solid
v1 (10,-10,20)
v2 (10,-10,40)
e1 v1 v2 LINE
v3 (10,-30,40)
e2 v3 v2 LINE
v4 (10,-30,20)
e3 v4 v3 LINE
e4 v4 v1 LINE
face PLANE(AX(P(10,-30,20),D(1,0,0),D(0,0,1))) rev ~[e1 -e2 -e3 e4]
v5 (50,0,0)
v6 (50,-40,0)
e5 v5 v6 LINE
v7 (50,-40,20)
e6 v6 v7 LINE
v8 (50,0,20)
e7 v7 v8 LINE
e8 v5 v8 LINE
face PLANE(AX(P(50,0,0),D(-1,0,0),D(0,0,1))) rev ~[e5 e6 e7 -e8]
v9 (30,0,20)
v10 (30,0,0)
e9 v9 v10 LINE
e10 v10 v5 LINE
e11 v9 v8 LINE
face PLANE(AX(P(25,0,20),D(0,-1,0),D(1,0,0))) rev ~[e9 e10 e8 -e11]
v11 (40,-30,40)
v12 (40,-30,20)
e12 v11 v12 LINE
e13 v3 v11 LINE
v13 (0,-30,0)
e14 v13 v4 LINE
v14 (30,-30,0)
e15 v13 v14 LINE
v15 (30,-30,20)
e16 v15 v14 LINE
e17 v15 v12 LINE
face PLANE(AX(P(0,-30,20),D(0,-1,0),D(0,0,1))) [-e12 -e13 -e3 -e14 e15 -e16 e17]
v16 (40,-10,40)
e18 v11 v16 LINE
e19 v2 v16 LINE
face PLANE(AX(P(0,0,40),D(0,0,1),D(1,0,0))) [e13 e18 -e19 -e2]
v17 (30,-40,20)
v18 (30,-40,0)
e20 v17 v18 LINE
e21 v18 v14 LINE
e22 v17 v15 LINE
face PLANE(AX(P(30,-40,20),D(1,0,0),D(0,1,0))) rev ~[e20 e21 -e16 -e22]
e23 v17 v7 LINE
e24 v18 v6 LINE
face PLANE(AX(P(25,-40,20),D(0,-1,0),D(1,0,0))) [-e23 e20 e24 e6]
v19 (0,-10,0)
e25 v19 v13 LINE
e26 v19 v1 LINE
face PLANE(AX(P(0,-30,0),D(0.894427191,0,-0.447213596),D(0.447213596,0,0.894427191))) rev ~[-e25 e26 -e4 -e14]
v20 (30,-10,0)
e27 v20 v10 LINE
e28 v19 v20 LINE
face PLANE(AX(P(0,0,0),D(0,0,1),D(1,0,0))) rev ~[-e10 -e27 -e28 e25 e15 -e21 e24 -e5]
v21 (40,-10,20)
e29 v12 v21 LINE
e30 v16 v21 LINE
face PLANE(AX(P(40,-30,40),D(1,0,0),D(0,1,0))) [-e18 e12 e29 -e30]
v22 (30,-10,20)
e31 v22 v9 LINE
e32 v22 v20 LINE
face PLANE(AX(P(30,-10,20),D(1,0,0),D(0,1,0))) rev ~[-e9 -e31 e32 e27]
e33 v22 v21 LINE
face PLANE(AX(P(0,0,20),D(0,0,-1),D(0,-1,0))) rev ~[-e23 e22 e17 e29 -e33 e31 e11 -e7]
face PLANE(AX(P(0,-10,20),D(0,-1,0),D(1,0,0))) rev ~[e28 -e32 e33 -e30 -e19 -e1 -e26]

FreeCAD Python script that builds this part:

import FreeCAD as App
import Part
import Sketcher
Q = App.Units.Quantity

doc = App.newDocument("Part")
body = doc.addObject("PartDesign::Body", "Body")

# Sketch on XZ plane
sketch1 = body.newObject("Sketcher::SketchObject", "Sketch")
sketch1.AttachmentSupport = (doc.getObject("XZ_Plane"), [""])
sketch1.MapMode = "FlatFace"
sketch1.addGeometry([
    Part.LineSegment(App.Vector(0, 40, 0), App.Vector(0, 0, 0)),
    Part.LineSegment(App.Vector(0, 0, 0), App.Vector(50, 0, 0)),
    Part.LineSegment(App.Vector(50, 0, 0), App.Vector(50, 40, 0)),
    Part.LineSegment(App.Vector(50, 40, 0), App.Vector(0, 40, 0)),
], False)
sketch1.addConstraint([
    Sketcher.Constraint("Coincident", 0, 2, 1, 1),
    Sketcher.Constraint("Coincident", 1, 2, 2, 1),
    Sketcher.Constraint("Coincident", 2, 2, 3, 1),
    Sketcher.Constraint("Coincident", 3, 2, 0, 1),
    Sketcher.Constraint("Vertical", 0),
    Sketcher.Constraint("Horizontal", 1),
    Sketcher.Constraint("Vertical", 2),
    Sketcher.Constraint("Horizontal", 3),
    Sketcher.Constraint("Coincident", 0, 2, -1, 1),
    Sketcher.Constraint("DistanceX", 1, 1, 1, 2, Q("50 mm")),
    Sketcher.Constraint("DistanceY", 0, 2, 0, 1, Q("40 mm")),
])
pad1 = body.newObject("PartDesign::Pad", "Pad")
pad1.Profile = sketch1
pad1.Length = 40

# Sketch on YZ plane
sketch2 = body.newObject("Sketcher::SketchObject", "Sketch001")
sketch2.AttachmentSupport = (doc.getObject("YZ_Plane"), [""])
sketch2.MapMode = "FlatFace"
sketch2.addGeometry([
    Part.LineSegment(App.Vector(0, 40, 0), App.Vector(0, 20, 0)),  # 0
    Part.LineSegment(App.Vector(0, 20, 0), App.Vector(-10, 20, 0)),  # 1
    Part.LineSegment(App.Vector(-10, 20, 0), App.Vector(-10, 40, 0)),  # 2
    Part.LineSegment(App.Vector(-10, 40, 0), App.Vector(0, 40, 0)),  # 3
    Part.LineSegment(App.Vector(-30, 40, 0), App.Vector(-30, 20, 0)),  # 4
    Part.LineSegment(App.Vector(-30, 20, 0), App.Vector(-40, 20, 0)),  # 5
    Part.LineSegment(App.Vector(-40, 20, 0), App.Vector(-40, 40, 0)),  # 6
    Part.LineSegment(App.Vector(-40, 40, 0), App.Vector(-30, 40, 0)),  # 7
], False)
sketch2.addConstraint([
    Sketcher.Constraint("Coincident", 0, 2, 1, 1),
    Sketcher.Constraint("Coincident", 1, 2, 2, 1),
    Sketcher.Constraint("Coincident", 2, 2, 3, 1),
    Sketcher.Constraint("Coincident", 3, 2, 0, 1),
    Sketcher.Constraint("Coincident", 4, 2, 5, 1),
    Sketcher.Constraint("Coincident", 5, 2, 6, 1),
    Sketcher.Constraint("Coincident", 6, 2, 7, 1),
    Sketcher.Constraint("Coincident", 7, 2, 4, 1),
    Sketcher.Constraint("Vertical", 0),
    Sketcher.Constraint("Horizontal", 1),
    Sketcher.Constraint("Vertical", 2),
    Sketcher.Constraint("Horizontal", 3),
    Sketcher.Constraint("Vertical", 4),
    Sketcher.Constraint("Horizontal", 5),
    Sketcher.Constraint("Vertical", 6),
    Sketcher.Constraint("Horizontal", 7),
    Sketcher.Constraint("PointOnObject", 0, 2, -2),
    Sketcher.Constraint("Horizontal", 1, 2, 4, 2),
    Sketcher.Constraint("Horizontal", 3, 2, 6, 2),
    Sketcher.Constraint("Equal", 3, 5),
    Sketcher.Constraint("DistanceX", 1, 2, 1, 1, Q("10 mm")),
    Sketcher.Constraint("DistanceY", 0, 2, 0, 1, Q("20 mm")),
    Sketcher.Constraint("DistanceY", -1, 1, 0, 2, Q("20 mm")),
    Sketcher.Constraint("DistanceX", 4, 2, -1, 1, Q("30 mm")),
])
pocket1 = body.newObject("PartDesign::Pocket", "Pocket")
pocket1.Profile = sketch2
pocket1.Type = "ThroughAll"
pocket1.Reversed = True

# Sketch on XY plane
sketch3 = body.newObject("Sketcher::SketchObject", "Sketch002")
sketch3.AttachmentSupport = (doc.getObject("XY_Plane"), [""])
sketch3.MapMode = "FlatFace"
sketch3.AttachmentOffset = App.Placement(App.Vector(0, 0, 20), App.Rotation())
sketch3.addGeometry([
    Part.LineSegment(App.Vector(0, 0, 0), App.Vector(0, -10, 0)),  # 0
    Part.LineSegment(App.Vector(0, -10, 0), App.Vector(30, -10, 0)),  # 1
    Part.LineSegment(App.Vector(30, -10, 0), App.Vector(30, 0, 0)),  # 2
    Part.LineSegment(App.Vector(30, 0, 0), App.Vector(0, 0, 0)),  # 3
    Part.LineSegment(App.Vector(0, -30, 0), App.Vector(0, -40, 0)),  # 4
    Part.LineSegment(App.Vector(0, -40, 0), App.Vector(30, -40, 0)),  # 5
    Part.LineSegment(App.Vector(30, -40, 0), App.Vector(30, -30, 0)),  # 6
    Part.LineSegment(App.Vector(30, -30, 0), App.Vector(0, -30, 0)),  # 7
], False)
sketch3.addConstraint([
    Sketcher.Constraint("Coincident", 0, 2, 1, 1),
    Sketcher.Constraint("Coincident", 1, 2, 2, 1),
    Sketcher.Constraint("Coincident", 2, 2, 3, 1),
    Sketcher.Constraint("Coincident", 3, 2, 0, 1),
    Sketcher.Constraint("Coincident", 4, 2, 5, 1),
    Sketcher.Constraint("Coincident", 5, 2, 6, 1),
    Sketcher.Constraint("Coincident", 6, 2, 7, 1),
    Sketcher.Constraint("Coincident", 7, 2, 4, 1),
    Sketcher.Constraint("Vertical", 0),
    Sketcher.Constraint("Horizontal", 1),
    Sketcher.Constraint("Vertical", 2),
    Sketcher.Constraint("Horizontal", 3),
    Sketcher.Constraint("Vertical", 4),
    Sketcher.Constraint("Horizontal", 5),
    Sketcher.Constraint("Vertical", 6),
    Sketcher.Constraint("Horizontal", 7),
    Sketcher.Constraint("Coincident", 3, 2, -1, 1),
    Sketcher.Constraint("PointOnObject", 4, 2, -2),
    Sketcher.Constraint("Vertical", 2, 2, 5, 2),
    Sketcher.Constraint("Equal", 2, 4),
    Sketcher.Constraint("DistanceX", 1, 1, 1, 2, Q("30 mm")),
    Sketcher.Constraint("DistanceY", 0, 2, 0, 1, Q("10 mm")),
    Sketcher.Constraint("DistanceY", 4, 2, -1, 1, Q("40 mm")),
])
pocket2 = body.newObject("PartDesign::Pocket", "Pocket001")
pocket2.Profile = sketch3
pocket2.Type = "ThroughAll"

# Sketch on XY plane
sketch4 = body.newObject("Sketcher::SketchObject", "Sketch003")
sketch4.AttachmentSupport = (doc.getObject("XY_Plane"), [""])
sketch4.MapMode = "FlatFace"
sketch4.AttachmentOffset = App.Placement(App.Vector(0, 0, 40), App.Rotation())
sketch4.addGeometry([
    Part.LineSegment(App.Vector(40, -10, 0), App.Vector(40, -30, 0)),
    Part.LineSegment(App.Vector(40, -30, 0), App.Vector(50, -30, 0)),
    Part.LineSegment(App.Vector(50, -30, 0), App.Vector(50, -10, 0)),
    Part.LineSegment(App.Vector(50, -10, 0), App.Vector(40, -10, 0)),
], False)
sketch4.addConstraint([
    Sketcher.Constraint("Coincident", 0, 2, 1, 1),
    Sketcher.Constraint("Coincident", 1, 2, 2, 1),
    Sketcher.Constraint("Coincident", 2, 2, 3, 1),
    Sketcher.Constraint("Coincident", 3, 2, 0, 1),
    Sketcher.Constraint("Vertical", 0),
    Sketcher.Constraint("Horizontal", 1),
    Sketcher.Constraint("Vertical", 2),
    Sketcher.Constraint("Horizontal", 3),
    Sketcher.Constraint("DistanceX", 1, 1, 1, 2, Q("10 mm")),
    Sketcher.Constraint("DistanceY", 0, 2, 0, 1, Q("20 mm")),
    Sketcher.Constraint("DistanceX", -1, 1, 0, 2, Q("40 mm")),
    Sketcher.Constraint("DistanceY", 0, 2, -1, 1, Q("30 mm")),
])
pocket3 = body.newObject("PartDesign::Pocket", "Pocket002")
pocket3.Profile = sketch4
pocket3.Length = 20

# Sketch on XZ plane
sketch5 = body.newObject("Sketcher::SketchObject", "Sketch004")
sketch5.AttachmentSupport = (doc.getObject("XZ_Plane"), [""])
sketch5.MapMode = "FlatFace"
sketch5.AttachmentOffset = App.Placement(App.Vector(0, 0, 30), App.Rotation())
sketch5.addGeometry([
    Part.LineSegment(App.Vector(0, 40, 0), App.Vector(0, 0, 0)),
    Part.LineSegment(App.Vector(0, 0, 0), App.Vector(10, 20, 0)),
    Part.LineSegment(App.Vector(10, 20, 0), App.Vector(10, 40, 0)),
    Part.LineSegment(App.Vector(10, 40, 0), App.Vector(0, 40, 0)),
], False)
sketch5.addConstraint([
    Sketcher.Constraint("Coincident", 0, 2, 1, 1),
    Sketcher.Constraint("Coincident", 1, 2, 2, 1),
    Sketcher.Constraint("Coincident", 2, 2, 3, 1),
    Sketcher.Constraint("Coincident", 3, 2, 0, 1),
    Sketcher.Constraint("Vertical", 0),
    Sketcher.Constraint("Vertical", 2),
    Sketcher.Constraint("Horizontal", 3),
    Sketcher.Constraint("Coincident", 0, 2, -1, 1),
    Sketcher.Constraint("DistanceX", 3, 2, 3, 1, Q("10 mm")),
    Sketcher.Constraint("DistanceY", 0, 2, 0, 1, Q("40 mm")),
    Sketcher.Constraint("DistanceY", 2, 1, 2, 2, Q("20 mm")),
])
pocket4 = body.newObject("PartDesign::Pocket", "Pocket003")
pocket4.Profile = sketch5
pocket4.Type = "ThroughAll"

doc.recompute()
